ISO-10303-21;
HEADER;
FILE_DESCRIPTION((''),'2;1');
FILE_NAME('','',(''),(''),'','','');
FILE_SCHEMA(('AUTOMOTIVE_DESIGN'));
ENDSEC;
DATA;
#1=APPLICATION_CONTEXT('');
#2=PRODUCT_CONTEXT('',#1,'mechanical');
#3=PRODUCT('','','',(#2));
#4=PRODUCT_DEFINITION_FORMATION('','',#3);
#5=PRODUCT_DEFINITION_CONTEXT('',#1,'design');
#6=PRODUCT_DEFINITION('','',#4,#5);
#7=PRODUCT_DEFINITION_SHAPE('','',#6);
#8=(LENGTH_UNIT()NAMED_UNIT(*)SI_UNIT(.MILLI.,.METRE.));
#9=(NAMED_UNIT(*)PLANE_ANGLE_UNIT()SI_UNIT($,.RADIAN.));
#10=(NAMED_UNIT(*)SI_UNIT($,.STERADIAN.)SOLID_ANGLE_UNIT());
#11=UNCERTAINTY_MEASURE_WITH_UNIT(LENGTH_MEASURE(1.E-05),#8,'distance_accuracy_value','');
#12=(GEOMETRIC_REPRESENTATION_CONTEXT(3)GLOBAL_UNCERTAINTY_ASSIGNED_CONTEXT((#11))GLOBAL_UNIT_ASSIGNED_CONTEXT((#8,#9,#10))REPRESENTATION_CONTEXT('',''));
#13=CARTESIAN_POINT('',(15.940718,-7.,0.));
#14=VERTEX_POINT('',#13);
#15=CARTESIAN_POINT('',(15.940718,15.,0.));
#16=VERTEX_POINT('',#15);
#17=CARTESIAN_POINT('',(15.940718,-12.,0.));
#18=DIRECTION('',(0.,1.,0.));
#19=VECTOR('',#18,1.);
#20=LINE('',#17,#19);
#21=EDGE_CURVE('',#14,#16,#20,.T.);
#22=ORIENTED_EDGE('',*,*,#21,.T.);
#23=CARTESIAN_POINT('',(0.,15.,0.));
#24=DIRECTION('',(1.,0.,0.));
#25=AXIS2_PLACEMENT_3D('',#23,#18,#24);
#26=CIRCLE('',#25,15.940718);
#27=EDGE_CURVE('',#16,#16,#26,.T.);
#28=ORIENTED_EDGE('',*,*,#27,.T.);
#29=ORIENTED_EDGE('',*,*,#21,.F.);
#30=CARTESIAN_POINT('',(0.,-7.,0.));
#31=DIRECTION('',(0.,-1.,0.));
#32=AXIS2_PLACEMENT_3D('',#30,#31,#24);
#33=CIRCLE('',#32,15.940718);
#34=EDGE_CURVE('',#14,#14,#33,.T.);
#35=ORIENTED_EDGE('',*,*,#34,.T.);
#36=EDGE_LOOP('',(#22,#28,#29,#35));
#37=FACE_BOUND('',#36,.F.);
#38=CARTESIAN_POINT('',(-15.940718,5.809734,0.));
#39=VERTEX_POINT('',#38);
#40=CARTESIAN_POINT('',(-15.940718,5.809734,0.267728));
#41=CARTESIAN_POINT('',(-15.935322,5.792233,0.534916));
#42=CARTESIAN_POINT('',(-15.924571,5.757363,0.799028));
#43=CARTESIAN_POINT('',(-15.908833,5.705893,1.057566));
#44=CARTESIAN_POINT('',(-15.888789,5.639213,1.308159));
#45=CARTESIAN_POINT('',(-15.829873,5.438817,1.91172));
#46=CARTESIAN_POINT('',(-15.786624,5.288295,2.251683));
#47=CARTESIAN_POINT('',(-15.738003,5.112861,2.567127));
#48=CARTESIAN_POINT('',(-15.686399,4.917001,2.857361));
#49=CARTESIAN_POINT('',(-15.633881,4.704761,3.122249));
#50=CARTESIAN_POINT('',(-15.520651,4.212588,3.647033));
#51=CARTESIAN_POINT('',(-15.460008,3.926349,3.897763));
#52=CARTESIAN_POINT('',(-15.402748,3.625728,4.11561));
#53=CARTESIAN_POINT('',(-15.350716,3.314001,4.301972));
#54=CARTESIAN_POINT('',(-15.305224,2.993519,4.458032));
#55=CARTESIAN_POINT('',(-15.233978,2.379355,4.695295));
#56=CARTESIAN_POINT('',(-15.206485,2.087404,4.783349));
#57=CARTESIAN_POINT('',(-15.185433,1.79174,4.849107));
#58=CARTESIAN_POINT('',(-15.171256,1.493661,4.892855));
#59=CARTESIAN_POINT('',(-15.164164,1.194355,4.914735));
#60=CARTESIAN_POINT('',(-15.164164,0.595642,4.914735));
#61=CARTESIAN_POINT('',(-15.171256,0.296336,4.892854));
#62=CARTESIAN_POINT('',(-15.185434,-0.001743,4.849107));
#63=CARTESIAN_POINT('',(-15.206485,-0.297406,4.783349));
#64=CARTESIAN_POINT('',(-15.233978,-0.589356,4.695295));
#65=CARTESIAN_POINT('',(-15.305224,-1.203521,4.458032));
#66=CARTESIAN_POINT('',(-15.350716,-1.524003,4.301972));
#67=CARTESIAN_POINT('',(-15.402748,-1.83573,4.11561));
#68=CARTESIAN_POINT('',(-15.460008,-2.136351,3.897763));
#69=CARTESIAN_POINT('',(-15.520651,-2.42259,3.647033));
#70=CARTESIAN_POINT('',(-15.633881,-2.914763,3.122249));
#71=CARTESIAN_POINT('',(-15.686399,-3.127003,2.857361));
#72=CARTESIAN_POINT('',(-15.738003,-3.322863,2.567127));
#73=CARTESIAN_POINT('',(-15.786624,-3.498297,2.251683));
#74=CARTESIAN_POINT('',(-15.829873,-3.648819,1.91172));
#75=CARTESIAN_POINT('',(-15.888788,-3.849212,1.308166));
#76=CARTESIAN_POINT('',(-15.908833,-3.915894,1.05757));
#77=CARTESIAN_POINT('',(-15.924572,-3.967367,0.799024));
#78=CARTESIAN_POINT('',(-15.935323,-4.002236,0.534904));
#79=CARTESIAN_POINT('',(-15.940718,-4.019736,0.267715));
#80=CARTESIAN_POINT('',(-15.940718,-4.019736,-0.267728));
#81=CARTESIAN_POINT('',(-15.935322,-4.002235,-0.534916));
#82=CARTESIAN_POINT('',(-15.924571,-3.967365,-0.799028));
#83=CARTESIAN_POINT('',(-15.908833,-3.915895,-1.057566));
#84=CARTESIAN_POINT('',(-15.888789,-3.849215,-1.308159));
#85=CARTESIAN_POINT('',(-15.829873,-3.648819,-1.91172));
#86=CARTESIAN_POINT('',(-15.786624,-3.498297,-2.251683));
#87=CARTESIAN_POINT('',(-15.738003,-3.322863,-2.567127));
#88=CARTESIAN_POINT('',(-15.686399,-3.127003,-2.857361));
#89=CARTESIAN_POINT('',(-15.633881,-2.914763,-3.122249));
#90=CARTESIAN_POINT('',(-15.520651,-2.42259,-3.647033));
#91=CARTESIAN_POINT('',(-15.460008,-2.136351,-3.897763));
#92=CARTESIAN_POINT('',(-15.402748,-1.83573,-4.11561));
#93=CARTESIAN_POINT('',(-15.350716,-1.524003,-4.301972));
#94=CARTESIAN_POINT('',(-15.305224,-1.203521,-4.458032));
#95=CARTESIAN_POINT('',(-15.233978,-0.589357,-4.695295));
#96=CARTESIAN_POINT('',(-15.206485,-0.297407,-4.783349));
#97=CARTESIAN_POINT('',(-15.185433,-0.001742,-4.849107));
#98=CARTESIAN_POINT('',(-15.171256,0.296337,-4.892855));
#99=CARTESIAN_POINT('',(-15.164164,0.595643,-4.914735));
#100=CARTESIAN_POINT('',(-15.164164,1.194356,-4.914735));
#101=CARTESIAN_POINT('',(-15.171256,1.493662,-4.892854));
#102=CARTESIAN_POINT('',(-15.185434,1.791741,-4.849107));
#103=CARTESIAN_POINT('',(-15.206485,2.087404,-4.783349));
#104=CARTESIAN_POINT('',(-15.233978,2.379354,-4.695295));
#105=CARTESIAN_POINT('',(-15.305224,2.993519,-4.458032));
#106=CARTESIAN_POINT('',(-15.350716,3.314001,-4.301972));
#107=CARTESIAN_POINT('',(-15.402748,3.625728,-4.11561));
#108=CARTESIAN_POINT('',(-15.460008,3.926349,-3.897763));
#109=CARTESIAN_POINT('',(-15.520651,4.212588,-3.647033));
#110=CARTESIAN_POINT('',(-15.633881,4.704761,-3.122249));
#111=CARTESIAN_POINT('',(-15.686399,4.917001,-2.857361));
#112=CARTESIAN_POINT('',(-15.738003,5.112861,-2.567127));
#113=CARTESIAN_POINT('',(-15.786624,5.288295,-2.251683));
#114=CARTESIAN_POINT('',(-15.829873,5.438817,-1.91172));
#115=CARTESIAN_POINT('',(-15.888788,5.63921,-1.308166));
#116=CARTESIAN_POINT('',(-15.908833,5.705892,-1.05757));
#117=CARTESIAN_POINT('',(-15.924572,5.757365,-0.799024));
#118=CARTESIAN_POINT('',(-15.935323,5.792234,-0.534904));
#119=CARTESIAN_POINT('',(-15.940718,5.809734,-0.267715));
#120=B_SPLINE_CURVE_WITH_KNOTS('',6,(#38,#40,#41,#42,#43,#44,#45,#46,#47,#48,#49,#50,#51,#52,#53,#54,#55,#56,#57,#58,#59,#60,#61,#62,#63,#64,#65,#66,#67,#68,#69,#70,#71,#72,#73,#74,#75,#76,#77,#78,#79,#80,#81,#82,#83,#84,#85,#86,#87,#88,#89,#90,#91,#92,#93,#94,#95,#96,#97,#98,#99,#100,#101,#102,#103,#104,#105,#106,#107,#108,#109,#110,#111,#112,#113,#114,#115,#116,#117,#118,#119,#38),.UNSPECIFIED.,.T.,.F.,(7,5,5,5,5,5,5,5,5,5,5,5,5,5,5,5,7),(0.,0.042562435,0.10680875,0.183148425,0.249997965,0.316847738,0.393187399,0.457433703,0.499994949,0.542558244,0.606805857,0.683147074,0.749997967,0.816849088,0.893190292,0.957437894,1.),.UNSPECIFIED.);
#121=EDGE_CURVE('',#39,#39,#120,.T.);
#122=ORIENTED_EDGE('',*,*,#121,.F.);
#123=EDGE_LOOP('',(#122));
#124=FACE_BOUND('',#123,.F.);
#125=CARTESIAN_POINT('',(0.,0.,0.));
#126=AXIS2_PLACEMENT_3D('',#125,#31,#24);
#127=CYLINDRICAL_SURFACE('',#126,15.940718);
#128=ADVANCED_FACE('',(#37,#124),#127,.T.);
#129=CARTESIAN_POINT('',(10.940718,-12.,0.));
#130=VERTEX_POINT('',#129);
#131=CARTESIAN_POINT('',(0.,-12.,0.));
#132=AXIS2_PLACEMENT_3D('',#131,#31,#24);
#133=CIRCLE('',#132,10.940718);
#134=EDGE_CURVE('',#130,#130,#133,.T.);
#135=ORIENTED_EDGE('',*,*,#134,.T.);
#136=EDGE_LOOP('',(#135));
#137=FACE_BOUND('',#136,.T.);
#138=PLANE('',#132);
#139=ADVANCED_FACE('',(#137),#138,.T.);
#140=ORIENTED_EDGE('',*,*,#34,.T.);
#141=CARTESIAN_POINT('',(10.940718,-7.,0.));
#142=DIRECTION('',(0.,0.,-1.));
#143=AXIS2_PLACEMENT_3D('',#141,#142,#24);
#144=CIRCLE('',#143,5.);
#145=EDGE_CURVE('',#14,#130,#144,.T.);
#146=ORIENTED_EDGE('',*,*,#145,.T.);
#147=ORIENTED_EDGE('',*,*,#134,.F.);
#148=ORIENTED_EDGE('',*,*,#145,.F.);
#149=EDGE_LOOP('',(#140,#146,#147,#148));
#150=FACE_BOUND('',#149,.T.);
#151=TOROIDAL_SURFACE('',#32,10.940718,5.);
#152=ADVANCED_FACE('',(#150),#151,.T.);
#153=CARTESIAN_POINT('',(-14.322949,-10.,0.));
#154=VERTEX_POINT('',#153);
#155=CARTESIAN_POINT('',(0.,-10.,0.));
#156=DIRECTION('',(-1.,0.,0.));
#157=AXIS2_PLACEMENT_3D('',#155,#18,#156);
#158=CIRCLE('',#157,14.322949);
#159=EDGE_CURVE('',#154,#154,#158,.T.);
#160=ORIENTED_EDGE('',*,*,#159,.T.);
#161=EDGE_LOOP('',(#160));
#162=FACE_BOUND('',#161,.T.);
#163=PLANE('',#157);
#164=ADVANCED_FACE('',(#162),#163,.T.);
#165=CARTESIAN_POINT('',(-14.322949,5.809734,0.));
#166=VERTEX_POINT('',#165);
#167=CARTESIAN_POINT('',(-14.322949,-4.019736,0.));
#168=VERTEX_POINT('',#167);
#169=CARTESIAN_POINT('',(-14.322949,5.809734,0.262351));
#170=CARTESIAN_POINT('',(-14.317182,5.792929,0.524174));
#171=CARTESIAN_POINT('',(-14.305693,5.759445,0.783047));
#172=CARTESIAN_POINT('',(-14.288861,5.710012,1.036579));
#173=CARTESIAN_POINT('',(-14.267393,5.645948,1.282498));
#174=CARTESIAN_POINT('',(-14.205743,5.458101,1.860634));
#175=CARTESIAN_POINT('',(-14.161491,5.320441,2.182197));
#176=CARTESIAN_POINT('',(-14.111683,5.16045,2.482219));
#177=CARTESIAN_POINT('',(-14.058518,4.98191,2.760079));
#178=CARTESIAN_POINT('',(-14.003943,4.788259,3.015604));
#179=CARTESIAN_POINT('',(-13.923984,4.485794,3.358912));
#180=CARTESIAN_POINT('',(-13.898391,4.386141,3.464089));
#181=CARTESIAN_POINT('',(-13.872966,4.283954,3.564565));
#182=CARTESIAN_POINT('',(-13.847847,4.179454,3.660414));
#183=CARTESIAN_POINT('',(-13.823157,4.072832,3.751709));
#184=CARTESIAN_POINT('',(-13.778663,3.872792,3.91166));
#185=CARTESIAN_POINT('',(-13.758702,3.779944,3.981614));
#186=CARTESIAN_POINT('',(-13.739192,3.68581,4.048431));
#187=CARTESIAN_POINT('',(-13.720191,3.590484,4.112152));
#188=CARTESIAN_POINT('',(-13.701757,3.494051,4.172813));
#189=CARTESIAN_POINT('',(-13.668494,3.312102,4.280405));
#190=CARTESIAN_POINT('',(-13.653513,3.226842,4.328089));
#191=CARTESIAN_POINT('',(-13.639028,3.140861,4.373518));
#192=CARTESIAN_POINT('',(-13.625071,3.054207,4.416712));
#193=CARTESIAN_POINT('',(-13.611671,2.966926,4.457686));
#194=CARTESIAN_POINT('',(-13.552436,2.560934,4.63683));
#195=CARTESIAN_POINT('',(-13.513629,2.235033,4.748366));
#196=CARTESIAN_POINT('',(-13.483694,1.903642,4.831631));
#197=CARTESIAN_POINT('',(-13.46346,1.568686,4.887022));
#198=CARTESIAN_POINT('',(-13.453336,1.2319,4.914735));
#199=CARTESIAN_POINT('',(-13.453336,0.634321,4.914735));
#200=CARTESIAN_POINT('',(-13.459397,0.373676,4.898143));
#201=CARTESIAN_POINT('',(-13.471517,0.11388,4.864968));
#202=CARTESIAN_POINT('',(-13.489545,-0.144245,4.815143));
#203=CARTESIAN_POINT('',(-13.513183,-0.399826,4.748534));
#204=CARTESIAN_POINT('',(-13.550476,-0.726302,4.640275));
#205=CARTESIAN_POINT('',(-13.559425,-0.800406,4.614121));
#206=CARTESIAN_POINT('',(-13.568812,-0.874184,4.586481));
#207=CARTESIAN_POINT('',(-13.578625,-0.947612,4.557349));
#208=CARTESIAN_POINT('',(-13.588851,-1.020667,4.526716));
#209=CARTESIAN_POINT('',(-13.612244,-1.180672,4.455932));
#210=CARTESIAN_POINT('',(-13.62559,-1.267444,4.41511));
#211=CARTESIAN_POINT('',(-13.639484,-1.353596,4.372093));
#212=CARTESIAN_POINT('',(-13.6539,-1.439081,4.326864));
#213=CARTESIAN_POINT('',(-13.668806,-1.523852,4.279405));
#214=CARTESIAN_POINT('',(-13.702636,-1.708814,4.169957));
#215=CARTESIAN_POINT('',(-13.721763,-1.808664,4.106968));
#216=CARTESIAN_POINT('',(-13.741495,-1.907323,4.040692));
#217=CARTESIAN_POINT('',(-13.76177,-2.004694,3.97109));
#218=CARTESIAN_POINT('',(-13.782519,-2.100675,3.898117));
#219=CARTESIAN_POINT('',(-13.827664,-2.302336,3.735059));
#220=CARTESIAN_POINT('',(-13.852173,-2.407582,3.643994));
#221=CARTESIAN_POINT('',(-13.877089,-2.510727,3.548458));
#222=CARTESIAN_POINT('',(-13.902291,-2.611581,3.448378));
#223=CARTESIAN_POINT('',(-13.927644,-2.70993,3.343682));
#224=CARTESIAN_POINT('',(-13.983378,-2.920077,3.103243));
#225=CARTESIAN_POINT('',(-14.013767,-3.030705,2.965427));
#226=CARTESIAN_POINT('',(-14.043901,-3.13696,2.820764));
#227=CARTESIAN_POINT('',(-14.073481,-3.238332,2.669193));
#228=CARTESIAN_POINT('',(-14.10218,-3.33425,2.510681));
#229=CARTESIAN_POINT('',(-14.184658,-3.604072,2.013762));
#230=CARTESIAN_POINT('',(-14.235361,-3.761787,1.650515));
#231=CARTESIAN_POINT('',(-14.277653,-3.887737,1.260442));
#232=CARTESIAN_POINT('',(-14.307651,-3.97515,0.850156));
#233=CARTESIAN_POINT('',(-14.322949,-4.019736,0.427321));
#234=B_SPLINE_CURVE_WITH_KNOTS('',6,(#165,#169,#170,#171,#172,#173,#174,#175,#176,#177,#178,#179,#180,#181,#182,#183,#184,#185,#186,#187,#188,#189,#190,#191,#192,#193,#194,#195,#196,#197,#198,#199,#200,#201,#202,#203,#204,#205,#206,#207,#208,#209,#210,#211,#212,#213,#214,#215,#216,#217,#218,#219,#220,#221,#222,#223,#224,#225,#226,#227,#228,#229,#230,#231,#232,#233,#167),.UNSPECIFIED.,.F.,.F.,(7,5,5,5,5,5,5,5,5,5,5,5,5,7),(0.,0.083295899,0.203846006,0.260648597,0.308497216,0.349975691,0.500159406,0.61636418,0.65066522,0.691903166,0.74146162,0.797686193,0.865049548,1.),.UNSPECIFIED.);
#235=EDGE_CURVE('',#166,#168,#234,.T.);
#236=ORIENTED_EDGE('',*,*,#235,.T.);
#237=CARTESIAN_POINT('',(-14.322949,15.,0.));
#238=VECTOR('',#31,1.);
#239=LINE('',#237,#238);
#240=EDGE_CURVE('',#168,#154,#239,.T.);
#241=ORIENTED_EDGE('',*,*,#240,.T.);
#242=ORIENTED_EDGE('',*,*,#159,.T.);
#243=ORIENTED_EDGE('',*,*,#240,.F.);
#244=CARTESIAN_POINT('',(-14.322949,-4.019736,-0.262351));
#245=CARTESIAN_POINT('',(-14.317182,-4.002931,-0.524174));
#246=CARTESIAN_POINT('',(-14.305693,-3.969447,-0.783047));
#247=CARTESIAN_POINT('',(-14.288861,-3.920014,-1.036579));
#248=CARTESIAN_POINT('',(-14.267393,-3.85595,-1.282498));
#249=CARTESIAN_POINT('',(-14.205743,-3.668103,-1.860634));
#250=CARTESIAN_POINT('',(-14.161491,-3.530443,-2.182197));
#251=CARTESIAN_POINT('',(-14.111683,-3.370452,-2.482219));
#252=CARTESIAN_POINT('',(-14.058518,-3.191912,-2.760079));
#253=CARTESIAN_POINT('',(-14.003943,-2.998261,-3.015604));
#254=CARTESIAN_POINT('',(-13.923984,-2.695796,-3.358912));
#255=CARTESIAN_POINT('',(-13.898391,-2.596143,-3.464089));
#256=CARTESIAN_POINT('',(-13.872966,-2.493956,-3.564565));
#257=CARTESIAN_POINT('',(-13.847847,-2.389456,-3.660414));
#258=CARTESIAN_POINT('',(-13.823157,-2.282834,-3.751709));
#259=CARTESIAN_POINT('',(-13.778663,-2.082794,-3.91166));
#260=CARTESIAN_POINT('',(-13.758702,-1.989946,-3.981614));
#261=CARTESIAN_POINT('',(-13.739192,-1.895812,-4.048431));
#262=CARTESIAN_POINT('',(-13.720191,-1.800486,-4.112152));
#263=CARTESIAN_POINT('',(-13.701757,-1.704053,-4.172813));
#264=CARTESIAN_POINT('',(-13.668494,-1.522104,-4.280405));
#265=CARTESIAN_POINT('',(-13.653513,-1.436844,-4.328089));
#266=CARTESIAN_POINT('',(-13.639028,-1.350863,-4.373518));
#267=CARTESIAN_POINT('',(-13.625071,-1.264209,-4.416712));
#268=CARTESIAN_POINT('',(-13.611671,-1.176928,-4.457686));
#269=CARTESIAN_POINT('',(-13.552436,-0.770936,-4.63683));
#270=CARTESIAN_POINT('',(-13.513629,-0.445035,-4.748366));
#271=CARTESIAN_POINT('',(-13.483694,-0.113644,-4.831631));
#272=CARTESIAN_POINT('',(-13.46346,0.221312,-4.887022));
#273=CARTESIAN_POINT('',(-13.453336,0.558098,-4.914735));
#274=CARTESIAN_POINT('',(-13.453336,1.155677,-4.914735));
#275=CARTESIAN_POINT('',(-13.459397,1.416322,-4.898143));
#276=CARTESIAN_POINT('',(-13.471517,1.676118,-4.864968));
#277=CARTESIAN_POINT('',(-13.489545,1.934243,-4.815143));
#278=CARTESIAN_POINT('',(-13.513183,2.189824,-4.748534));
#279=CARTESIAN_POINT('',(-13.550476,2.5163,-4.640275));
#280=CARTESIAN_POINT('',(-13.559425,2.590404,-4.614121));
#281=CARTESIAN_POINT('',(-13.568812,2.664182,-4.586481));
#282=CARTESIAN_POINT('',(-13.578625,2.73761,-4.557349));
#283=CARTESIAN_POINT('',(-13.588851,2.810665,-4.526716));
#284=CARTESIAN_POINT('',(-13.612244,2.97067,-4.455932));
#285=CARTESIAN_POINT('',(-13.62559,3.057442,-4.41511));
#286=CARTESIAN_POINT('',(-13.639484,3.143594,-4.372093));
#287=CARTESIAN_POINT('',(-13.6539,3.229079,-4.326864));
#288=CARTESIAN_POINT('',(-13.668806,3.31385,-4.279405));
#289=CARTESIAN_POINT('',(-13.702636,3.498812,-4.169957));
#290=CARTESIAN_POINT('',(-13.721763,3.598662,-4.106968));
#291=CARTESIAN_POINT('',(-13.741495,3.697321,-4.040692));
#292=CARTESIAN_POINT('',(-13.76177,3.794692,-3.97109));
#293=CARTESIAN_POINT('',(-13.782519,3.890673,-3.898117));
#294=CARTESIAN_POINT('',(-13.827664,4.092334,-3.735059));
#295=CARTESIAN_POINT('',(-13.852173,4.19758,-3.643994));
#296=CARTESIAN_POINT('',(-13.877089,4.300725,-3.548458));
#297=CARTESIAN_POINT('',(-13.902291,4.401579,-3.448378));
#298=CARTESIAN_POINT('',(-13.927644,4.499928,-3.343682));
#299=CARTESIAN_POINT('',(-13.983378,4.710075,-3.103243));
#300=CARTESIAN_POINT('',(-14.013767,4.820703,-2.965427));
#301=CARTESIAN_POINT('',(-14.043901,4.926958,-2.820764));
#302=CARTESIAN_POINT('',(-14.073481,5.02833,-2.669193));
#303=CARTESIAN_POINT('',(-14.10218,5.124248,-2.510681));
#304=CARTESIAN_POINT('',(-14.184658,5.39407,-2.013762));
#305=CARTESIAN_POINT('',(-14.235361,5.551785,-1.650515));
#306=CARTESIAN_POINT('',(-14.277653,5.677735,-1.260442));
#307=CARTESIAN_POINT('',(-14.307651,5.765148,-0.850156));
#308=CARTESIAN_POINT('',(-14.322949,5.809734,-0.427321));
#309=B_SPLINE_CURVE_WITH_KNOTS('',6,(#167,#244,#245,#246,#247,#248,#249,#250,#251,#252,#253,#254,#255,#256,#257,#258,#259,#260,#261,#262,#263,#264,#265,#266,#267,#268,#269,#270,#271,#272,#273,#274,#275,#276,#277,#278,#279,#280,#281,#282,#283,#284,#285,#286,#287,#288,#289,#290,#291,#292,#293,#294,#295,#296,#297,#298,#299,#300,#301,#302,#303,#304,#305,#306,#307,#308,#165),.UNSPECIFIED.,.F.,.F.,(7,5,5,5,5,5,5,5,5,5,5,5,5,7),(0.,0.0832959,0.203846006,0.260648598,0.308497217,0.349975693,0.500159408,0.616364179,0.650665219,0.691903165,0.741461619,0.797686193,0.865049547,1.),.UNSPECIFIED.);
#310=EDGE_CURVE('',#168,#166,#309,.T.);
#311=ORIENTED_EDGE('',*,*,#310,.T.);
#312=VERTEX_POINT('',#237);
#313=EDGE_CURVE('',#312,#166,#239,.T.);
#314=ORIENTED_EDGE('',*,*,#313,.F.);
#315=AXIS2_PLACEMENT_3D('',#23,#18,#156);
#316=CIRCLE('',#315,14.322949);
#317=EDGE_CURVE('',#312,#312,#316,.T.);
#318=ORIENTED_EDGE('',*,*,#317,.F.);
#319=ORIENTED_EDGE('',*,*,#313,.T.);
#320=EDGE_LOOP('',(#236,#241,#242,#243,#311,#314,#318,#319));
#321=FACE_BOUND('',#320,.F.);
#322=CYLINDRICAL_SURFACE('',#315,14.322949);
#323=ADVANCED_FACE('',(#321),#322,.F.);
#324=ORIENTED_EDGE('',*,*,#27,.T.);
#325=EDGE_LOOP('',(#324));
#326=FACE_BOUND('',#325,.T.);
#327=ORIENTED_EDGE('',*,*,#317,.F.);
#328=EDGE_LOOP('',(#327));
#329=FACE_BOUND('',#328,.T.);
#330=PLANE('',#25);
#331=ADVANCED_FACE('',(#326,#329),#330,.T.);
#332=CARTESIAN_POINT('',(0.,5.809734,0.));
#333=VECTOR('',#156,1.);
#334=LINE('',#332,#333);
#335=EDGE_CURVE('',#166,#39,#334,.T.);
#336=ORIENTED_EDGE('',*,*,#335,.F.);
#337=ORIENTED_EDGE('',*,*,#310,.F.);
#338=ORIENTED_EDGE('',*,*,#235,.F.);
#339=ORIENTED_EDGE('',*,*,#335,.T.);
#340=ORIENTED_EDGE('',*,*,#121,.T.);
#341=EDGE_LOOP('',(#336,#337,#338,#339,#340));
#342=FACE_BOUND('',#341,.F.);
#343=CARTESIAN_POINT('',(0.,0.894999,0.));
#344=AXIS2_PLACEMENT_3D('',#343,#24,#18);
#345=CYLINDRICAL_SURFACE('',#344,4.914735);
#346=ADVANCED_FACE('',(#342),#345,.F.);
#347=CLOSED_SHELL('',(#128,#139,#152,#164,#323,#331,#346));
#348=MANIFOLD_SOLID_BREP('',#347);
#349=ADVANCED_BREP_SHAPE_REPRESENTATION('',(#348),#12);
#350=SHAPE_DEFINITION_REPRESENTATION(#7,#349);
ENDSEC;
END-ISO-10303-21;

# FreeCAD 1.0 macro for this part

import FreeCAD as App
import Part
import Sketcher


def edges_at(feature, points):
    """Names of the edges that pass closest to the given points."""
    edges = feature.Shape.Edges
    near = lambda p: min(range(len(edges)), key=lambda i: edges[i].distToShape(Part.Vertex(*p))[0])
    return sorted({f"Edge{near(p) + 1}" for p in points})

doc = App.newDocument("Part")
body = doc.addObject("PartDesign::Body", "Body")

# Sketch on XZ plane
sketch1 = body.newObject("Sketcher::SketchObject", "Sketch")
sketch1.AttachmentSupport = (doc.getObject("XZ_Plane"), [""])
sketch1.MapMode = "FlatFace"
sketch1.addGeometry(Part.Circle(App.Vector(0, 0, 0), App.Vector(0, 0, 1), 16), False)
sketch1.addConstraint([
    Sketcher.Constraint("Coincident", 0, 3, -1, 1),
    Sketcher.Constraint("Diameter", 0, 31.881436),
])
pad1 = body.newObject("PartDesign::Pad", "Pad")
pad1.Profile = sketch1
pad1.Length = 12

# Sketch on XZ plane
sketch2 = body.newObject("Sketcher::SketchObject", "Sketch001")
sketch2.AttachmentSupport = (doc.getObject("XZ_Plane"), [""])
sketch2.MapMode = "FlatFace"
sketch2.addGeometry(Part.Circle(App.Vector(0, 0, 0), App.Vector(0, 0, 1), 16), False)
sketch2.addConstraint([
    Sketcher.Constraint("Coincident", 0, 3, -1, 1),
    Sketcher.Constraint("Diameter", 0, 31.881436),
])
pad2 = body.newObject("PartDesign::Pad", "Pad001")
pad2.Profile = sketch2
pad2.Length = 15
pad2.Reversed = True

# Sketch on XZ plane
sketch3 = body.newObject("Sketcher::SketchObject", "Sketch002")
sketch3.AttachmentSupport = (doc.getObject("XZ_Plane"), [""])
sketch3.MapMode = "FlatFace"
sketch3.AttachmentOffset = App.Placement(App.Vector(0, 0, -15), App.Rotation())
sketch3.addGeometry(Part.Circle(App.Vector(0, 0, 0), App.Vector(0, 0, 1), 14), False)
sketch3.addConstraint([
    Sketcher.Constraint("Coincident", 0, 3, -1, 1),
    Sketcher.Constraint("Diameter", 0, 28.645898),
])
pocket1 = body.newObject("PartDesign::Pocket", "Pocket")
pocket1.Profile = sketch3
pocket1.Length = 25
pocket1.Reversed = True
doc.recompute()

fillet = body.newObject("PartDesign::Fillet", "Fillet")
fillet.Base = (pocket1, edges_at(pocket1, [(-15.941, -12, 0)]))
fillet.Radius = 5

# Sketch on YZ plane
sketch4 = body.newObject("Sketcher::SketchObject", "Sketch003")
sketch4.AttachmentSupport = (doc.getObject("YZ_Plane"), [""])
sketch4.MapMode = "FlatFace"
sketch4.addGeometry(Part.Circle(App.Vector(0.9, 0, 0), App.Vector(0, 0, 1), 4.9), False)
sketch4.addConstraint([
    Sketcher.Constraint("PointOnObject", 0, 3, -1),
    Sketcher.Constraint("Diameter", 0, 9.82947),
    Sketcher.Constraint("DistanceX", -1, 1, 0, 3, 0.894999),
])
pocket2 = body.newObject("PartDesign::Pocket", "Pocket001")
pocket2.Profile = sketch4
pocket2.Type = "ThroughAll"

doc.recompute()
